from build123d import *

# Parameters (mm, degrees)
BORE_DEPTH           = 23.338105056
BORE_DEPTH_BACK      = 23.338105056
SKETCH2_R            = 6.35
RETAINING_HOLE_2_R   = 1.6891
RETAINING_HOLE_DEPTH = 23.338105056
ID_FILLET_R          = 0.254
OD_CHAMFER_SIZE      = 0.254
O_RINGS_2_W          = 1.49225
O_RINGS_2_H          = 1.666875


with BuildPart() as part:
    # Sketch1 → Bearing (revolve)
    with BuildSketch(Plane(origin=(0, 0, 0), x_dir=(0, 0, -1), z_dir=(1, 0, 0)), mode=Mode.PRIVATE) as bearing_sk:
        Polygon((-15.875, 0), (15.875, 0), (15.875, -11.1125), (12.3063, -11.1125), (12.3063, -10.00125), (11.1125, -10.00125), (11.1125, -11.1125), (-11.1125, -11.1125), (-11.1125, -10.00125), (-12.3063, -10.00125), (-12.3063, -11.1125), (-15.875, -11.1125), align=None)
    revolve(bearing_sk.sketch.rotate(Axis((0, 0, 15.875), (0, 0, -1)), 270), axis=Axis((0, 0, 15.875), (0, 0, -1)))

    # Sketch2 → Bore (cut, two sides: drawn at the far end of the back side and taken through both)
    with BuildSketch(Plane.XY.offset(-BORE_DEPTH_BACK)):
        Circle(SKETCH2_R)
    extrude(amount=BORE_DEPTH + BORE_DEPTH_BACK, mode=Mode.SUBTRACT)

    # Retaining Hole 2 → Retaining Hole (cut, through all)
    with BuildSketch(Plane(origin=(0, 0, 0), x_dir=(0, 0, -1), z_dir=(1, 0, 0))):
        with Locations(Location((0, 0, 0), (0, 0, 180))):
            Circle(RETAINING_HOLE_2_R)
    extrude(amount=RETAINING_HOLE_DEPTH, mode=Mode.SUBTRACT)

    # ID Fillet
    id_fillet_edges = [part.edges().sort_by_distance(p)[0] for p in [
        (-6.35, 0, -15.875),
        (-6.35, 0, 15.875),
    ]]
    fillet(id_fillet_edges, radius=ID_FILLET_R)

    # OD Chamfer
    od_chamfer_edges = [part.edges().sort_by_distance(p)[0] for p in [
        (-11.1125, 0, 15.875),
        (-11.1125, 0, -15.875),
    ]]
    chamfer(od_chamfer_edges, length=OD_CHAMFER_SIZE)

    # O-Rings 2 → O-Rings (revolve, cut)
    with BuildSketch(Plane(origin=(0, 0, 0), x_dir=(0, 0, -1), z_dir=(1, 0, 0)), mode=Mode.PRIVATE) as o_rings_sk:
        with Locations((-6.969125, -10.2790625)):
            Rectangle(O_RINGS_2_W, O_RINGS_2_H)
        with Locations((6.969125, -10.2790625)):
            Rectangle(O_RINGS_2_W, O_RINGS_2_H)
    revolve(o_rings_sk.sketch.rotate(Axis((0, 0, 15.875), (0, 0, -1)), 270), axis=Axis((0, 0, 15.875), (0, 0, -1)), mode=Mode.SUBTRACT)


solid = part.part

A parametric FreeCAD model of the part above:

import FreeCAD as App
import Part
import Sketcher
Q = App.Units.Quantity


def edges_at(feature, points):
    """Names of the edges that pass closest to the given points."""
    edges = feature.Shape.Edges
    near = lambda p: min(range(len(edges)), key=lambda i: edges[i].distToShape(Part.Vertex(*p))[0])
    return sorted({f"Edge{near(p) + 1}" for p in points})

doc = App.newDocument("Part")
body = doc.addObject("PartDesign::Body", "Body")

# Sketch on YZ plane
sketch1 = doc.addObject("Sketcher::SketchObject", "Sketch")
body.addObject(sketch1)
sketch1.AttachmentSupport = (doc.YZ_Plane, [""])
sketch1.MapMode = "FlatFace"
sketch1.addGeometry([
    Part.LineSegment(App.Vector(0, -15.9, 0), App.Vector(0, 15.9, 0)),  # 0
    Part.LineSegment(App.Vector(0, 15.9, 0), App.Vector(-11.1, 15.9, 0)),  # 1
    Part.LineSegment(App.Vector(-11.1, 15.9, 0), App.Vector(-11.1, 12.3, 0)),  # 2
    Part.LineSegment(App.Vector(-11.1, 12.3, 0), App.Vector(-10, 12.3, 0)),  # 3
    Part.LineSegment(App.Vector(-10, 12.3, 0), App.Vector(-10, 11.1, 0)),  # 4
    Part.LineSegment(App.Vector(-10, 11.1, 0), App.Vector(-11.1, 11.1, 0)),  # 5
    Part.LineSegment(App.Vector(-11.1, 11.1, 0), App.Vector(-11.1, -11.1, 0)),  # 6
    Part.LineSegment(App.Vector(-11.1, -11.1, 0), App.Vector(-10, -11.1, 0)),  # 7
    Part.LineSegment(App.Vector(-10, -11.1, 0), App.Vector(-10, -12.3, 0)),  # 8
    Part.LineSegment(App.Vector(-10, -12.3, 0), App.Vector(-11.1, -12.3, 0)),  # 9
    Part.LineSegment(App.Vector(-11.1, -12.3, 0), App.Vector(-11.1, -15.9, 0)),  # 10
    Part.LineSegment(App.Vector(-11.1, -15.9, 0), App.Vector(0, -15.9, 0)),  # 11
], False)
sketch1.addConstraint([
    Sketcher.Constraint("Coincident", 0, 2, 1, 1),
    Sketcher.Constraint("Coincident", 1, 2, 2, 1),
    Sketcher.Constraint("Coincident", 2, 2, 3, 1),
    Sketcher.Constraint("Coincident", 3, 2, 4, 1),
    Sketcher.Constraint("Coincident", 4, 2, 5, 1),
    Sketcher.Constraint("Coincident", 5, 2, 6, 1),
    Sketcher.Constraint("Coincident", 6, 2, 7, 1),
    Sketcher.Constraint("Coincident", 7, 2, 8, 1),
    Sketcher.Constraint("Coincident", 8, 2, 9, 1),
    Sketcher.Constraint("Coincident", 9, 2, 10, 1),
    Sketcher.Constraint("Coincident", 10, 2, 11, 1),
    Sketcher.Constraint("Coincident", 11, 2, 0, 1),
    Sketcher.Constraint("Vertical", 0),
    Sketcher.Constraint("Horizontal", 1),
    Sketcher.Constraint("Vertical", 2),
    Sketcher.Constraint("Horizontal", 3),
    Sketcher.Constraint("Vertical", 4),
    Sketcher.Constraint("Horizontal", 5),
    Sketcher.Constraint("Vertical", 6),
    Sketcher.Constraint("Horizontal", 7),
    Sketcher.Constraint("Vertical", 8),
    Sketcher.Constraint("Horizontal", 9),
    Sketcher.Constraint("Vertical", 10),
    Sketcher.Constraint("Horizontal", 11),
    Sketcher.Constraint("Symmetric", 0, 2, 11, 2, -1, 1),
    Sketcher.Constraint("Symmetric", 4, 2, 7, 2, -1),
    Sketcher.Constraint("Symmetric", 2, 2, 9, 2, -1),
    Sketcher.Constraint("Vertical", 2, 2, 5, 2),
    Sketcher.Constraint("DistanceY", 0, 1, 0, 2, Q("1.25 in")),
    Sketcher.Constraint("DistanceX", 1, 2, 1, 1, Q("0.4375 in")),
    Sketcher.Constraint("DistanceY", 4, 2, 4, 1, Q("0.047 in")),
    Sketcher.Constraint("DistanceY", 6, 2, 6, 1, Q("0.875 in")),
    Sketcher.Constraint("DistanceX", 3, 1, 3, 2, Q("1.11125 mm")),
])
revolution = doc.addObject("PartDesign::Revolution", "Revolution")
body.addObject(revolution)
revolution.Profile = sketch1
revolution.ReferenceAxis = (sketch1, ["V_Axis"])
revolution.Angle = 360

# Sketch on XY plane
sketch2 = doc.addObject("Sketcher::SketchObject", "Sketch001")
body.addObject(sketch2)
sketch2.AttachmentSupport = (doc.XY_Plane, [""])
sketch2.MapMode = "FlatFace"
sketch2.addGeometry(Part.Circle(App.Vector(0, 0, 0), App.Vector(0, 0, 1), 6), False)
sketch2.addConstraint([
    Sketcher.Constraint("Coincident", 0, 3, -1, 1),
    Sketcher.Constraint("Diameter", 0, Q("0.5 in")),
])
pocket1 = doc.addObject("PartDesign::Pocket", "Pocket")
body.addObject(pocket1)
pocket1.Profile = sketch2
pocket1.Type = "ThroughAll"
pocket1.Midplane = True

# Sketch on YZ plane
sketch3 = doc.addObject("Sketcher::SketchObject", "Sketch002")
body.addObject(sketch3)
sketch3.AttachmentSupport = (doc.YZ_Plane, [""])
sketch3.MapMode = "FlatFace"
sketch3.addGeometry(Part.Circle(App.Vector(0, 0, 0), App.Vector(0, 0, 1), 1.7), False)
sketch3.addConstraint([
    Sketcher.Constraint("Coincident", 0, 3, -1, 1),
    Sketcher.Constraint("Diameter", 0, Q("0.133 in")),
])
pocket2 = doc.addObject("PartDesign::Pocket", "Pocket001")
body.addObject(pocket2)
pocket2.Profile = sketch3
pocket2.Type = "ThroughAll"
pocket2.Reversed = True
doc.recompute()

fillet = doc.addObject("PartDesign::Fillet", "Fillet")
body.addObject(fillet)
fillet.Base = (pocket2, edges_at(pocket2, [(-6.35, 0, -15.875), (-6.35, 0, 15.875)]))
fillet.Radius = Q("0.01 in")
doc.recompute()

chamfer = doc.addObject("PartDesign::Chamfer", "Chamfer")
body.addObject(chamfer)
chamfer.Base = (fillet, edges_at(fillet, [(-11.113, 0, 15.875), (-11.113, 0, -15.875)]))
chamfer.Size = Q("0.01 in")

# Sketch on YZ plane
sketch4 = doc.addObject("Sketcher::SketchObject", "Sketch003")
body.addObject(sketch4)
sketch4.AttachmentSupport = (doc.YZ_Plane, [""])
sketch4.MapMode = "FlatFace"
sketch4.addGeometry([
    Part.LineSegment(App.Vector(-9.4, 7.7, 0), App.Vector(-11.1, 7.7, 0)),  # 0
    Part.LineSegment(App.Vector(-11.1, 7.7, 0), App.Vector(-11.1, 6.2, 0)),  # 1
    Part.LineSegment(App.Vector(-11.1, 6.2, 0), App.Vector(-9.4, 6.2, 0)),  # 2
    Part.LineSegment(App.Vector(-9.4, 6.2, 0), App.Vector(-9.4, 7.7, 0)),  # 3
    Part.LineSegment(App.Vector(-9.4, -6.2, 0), App.Vector(-11.1, -6.2, 0)),  # 4
    Part.LineSegment(App.Vector(-11.1, -6.2, 0), App.Vector(-11.1, -7.7, 0)),  # 5
    Part.LineSegment(App.Vector(-11.1, -7.7, 0), App.Vector(-9.4, -7.7, 0)),  # 6
    Part.LineSegment(App.Vector(-9.4, -7.7, 0), App.Vector(-9.4, -6.2, 0)),  # 7
], False)
sketch4.addConstraint([
    Sketcher.Constraint("Coincident", 0, 2, 1, 1),
    Sketcher.Constraint("Coincident", 1, 2, 2, 1),
    Sketcher.Constraint("Coincident", 2, 2, 3, 1),
    Sketcher.Constraint("Coincident", 3, 2, 0, 1),
    Sketcher.Constraint("Coincident", 4, 2, 5, 1),
    Sketcher.Constraint("Coincident", 5, 2, 6, 1),
    Sketcher.Constraint("Coincident", 6, 2, 7, 1),
    Sketcher.Constraint("Coincident", 7, 2, 4, 1),
    Sketcher.Constraint("Horizontal", 0),
    Sketcher.Constraint("Vertical", 1),
    Sketcher.Constraint("Horizontal", 2),
    Sketcher.Constraint("Vertical", 3),
    Sketcher.Constraint("Horizontal", 4),
    Sketcher.Constraint("Vertical", 5),
    Sketcher.Constraint("Horizontal", 6),
    Sketcher.Constraint("Vertical", 7),
    Sketcher.Constraint("Symmetric", 1, 2, 4, 2, -1),
    Sketcher.Constraint("Symmetric", 3, 2, 6, 2, -1),
    Sketcher.Constraint("DistanceY", 4, 2, 1, 2, Q("0.49 in")),
    Sketcher.Constraint("DistanceX", 0, 2, -1, 1, Q("0.4375 in")),
    Sketcher.Constraint("DistanceY", 5, 2, 0, 2, Q("0.6075 in")),
    Sketcher.Constraint("DistanceX", 0, 2, 0, 1, Q("1.666875 mm")),
])
groove = doc.addObject("PartDesign::Groove", "Groove")
body.addObject(groove)
groove.Profile = sketch4
groove.ReferenceAxis = (sketch4, ["V_Axis"])
groove.Angle = 360

doc.recompute()
